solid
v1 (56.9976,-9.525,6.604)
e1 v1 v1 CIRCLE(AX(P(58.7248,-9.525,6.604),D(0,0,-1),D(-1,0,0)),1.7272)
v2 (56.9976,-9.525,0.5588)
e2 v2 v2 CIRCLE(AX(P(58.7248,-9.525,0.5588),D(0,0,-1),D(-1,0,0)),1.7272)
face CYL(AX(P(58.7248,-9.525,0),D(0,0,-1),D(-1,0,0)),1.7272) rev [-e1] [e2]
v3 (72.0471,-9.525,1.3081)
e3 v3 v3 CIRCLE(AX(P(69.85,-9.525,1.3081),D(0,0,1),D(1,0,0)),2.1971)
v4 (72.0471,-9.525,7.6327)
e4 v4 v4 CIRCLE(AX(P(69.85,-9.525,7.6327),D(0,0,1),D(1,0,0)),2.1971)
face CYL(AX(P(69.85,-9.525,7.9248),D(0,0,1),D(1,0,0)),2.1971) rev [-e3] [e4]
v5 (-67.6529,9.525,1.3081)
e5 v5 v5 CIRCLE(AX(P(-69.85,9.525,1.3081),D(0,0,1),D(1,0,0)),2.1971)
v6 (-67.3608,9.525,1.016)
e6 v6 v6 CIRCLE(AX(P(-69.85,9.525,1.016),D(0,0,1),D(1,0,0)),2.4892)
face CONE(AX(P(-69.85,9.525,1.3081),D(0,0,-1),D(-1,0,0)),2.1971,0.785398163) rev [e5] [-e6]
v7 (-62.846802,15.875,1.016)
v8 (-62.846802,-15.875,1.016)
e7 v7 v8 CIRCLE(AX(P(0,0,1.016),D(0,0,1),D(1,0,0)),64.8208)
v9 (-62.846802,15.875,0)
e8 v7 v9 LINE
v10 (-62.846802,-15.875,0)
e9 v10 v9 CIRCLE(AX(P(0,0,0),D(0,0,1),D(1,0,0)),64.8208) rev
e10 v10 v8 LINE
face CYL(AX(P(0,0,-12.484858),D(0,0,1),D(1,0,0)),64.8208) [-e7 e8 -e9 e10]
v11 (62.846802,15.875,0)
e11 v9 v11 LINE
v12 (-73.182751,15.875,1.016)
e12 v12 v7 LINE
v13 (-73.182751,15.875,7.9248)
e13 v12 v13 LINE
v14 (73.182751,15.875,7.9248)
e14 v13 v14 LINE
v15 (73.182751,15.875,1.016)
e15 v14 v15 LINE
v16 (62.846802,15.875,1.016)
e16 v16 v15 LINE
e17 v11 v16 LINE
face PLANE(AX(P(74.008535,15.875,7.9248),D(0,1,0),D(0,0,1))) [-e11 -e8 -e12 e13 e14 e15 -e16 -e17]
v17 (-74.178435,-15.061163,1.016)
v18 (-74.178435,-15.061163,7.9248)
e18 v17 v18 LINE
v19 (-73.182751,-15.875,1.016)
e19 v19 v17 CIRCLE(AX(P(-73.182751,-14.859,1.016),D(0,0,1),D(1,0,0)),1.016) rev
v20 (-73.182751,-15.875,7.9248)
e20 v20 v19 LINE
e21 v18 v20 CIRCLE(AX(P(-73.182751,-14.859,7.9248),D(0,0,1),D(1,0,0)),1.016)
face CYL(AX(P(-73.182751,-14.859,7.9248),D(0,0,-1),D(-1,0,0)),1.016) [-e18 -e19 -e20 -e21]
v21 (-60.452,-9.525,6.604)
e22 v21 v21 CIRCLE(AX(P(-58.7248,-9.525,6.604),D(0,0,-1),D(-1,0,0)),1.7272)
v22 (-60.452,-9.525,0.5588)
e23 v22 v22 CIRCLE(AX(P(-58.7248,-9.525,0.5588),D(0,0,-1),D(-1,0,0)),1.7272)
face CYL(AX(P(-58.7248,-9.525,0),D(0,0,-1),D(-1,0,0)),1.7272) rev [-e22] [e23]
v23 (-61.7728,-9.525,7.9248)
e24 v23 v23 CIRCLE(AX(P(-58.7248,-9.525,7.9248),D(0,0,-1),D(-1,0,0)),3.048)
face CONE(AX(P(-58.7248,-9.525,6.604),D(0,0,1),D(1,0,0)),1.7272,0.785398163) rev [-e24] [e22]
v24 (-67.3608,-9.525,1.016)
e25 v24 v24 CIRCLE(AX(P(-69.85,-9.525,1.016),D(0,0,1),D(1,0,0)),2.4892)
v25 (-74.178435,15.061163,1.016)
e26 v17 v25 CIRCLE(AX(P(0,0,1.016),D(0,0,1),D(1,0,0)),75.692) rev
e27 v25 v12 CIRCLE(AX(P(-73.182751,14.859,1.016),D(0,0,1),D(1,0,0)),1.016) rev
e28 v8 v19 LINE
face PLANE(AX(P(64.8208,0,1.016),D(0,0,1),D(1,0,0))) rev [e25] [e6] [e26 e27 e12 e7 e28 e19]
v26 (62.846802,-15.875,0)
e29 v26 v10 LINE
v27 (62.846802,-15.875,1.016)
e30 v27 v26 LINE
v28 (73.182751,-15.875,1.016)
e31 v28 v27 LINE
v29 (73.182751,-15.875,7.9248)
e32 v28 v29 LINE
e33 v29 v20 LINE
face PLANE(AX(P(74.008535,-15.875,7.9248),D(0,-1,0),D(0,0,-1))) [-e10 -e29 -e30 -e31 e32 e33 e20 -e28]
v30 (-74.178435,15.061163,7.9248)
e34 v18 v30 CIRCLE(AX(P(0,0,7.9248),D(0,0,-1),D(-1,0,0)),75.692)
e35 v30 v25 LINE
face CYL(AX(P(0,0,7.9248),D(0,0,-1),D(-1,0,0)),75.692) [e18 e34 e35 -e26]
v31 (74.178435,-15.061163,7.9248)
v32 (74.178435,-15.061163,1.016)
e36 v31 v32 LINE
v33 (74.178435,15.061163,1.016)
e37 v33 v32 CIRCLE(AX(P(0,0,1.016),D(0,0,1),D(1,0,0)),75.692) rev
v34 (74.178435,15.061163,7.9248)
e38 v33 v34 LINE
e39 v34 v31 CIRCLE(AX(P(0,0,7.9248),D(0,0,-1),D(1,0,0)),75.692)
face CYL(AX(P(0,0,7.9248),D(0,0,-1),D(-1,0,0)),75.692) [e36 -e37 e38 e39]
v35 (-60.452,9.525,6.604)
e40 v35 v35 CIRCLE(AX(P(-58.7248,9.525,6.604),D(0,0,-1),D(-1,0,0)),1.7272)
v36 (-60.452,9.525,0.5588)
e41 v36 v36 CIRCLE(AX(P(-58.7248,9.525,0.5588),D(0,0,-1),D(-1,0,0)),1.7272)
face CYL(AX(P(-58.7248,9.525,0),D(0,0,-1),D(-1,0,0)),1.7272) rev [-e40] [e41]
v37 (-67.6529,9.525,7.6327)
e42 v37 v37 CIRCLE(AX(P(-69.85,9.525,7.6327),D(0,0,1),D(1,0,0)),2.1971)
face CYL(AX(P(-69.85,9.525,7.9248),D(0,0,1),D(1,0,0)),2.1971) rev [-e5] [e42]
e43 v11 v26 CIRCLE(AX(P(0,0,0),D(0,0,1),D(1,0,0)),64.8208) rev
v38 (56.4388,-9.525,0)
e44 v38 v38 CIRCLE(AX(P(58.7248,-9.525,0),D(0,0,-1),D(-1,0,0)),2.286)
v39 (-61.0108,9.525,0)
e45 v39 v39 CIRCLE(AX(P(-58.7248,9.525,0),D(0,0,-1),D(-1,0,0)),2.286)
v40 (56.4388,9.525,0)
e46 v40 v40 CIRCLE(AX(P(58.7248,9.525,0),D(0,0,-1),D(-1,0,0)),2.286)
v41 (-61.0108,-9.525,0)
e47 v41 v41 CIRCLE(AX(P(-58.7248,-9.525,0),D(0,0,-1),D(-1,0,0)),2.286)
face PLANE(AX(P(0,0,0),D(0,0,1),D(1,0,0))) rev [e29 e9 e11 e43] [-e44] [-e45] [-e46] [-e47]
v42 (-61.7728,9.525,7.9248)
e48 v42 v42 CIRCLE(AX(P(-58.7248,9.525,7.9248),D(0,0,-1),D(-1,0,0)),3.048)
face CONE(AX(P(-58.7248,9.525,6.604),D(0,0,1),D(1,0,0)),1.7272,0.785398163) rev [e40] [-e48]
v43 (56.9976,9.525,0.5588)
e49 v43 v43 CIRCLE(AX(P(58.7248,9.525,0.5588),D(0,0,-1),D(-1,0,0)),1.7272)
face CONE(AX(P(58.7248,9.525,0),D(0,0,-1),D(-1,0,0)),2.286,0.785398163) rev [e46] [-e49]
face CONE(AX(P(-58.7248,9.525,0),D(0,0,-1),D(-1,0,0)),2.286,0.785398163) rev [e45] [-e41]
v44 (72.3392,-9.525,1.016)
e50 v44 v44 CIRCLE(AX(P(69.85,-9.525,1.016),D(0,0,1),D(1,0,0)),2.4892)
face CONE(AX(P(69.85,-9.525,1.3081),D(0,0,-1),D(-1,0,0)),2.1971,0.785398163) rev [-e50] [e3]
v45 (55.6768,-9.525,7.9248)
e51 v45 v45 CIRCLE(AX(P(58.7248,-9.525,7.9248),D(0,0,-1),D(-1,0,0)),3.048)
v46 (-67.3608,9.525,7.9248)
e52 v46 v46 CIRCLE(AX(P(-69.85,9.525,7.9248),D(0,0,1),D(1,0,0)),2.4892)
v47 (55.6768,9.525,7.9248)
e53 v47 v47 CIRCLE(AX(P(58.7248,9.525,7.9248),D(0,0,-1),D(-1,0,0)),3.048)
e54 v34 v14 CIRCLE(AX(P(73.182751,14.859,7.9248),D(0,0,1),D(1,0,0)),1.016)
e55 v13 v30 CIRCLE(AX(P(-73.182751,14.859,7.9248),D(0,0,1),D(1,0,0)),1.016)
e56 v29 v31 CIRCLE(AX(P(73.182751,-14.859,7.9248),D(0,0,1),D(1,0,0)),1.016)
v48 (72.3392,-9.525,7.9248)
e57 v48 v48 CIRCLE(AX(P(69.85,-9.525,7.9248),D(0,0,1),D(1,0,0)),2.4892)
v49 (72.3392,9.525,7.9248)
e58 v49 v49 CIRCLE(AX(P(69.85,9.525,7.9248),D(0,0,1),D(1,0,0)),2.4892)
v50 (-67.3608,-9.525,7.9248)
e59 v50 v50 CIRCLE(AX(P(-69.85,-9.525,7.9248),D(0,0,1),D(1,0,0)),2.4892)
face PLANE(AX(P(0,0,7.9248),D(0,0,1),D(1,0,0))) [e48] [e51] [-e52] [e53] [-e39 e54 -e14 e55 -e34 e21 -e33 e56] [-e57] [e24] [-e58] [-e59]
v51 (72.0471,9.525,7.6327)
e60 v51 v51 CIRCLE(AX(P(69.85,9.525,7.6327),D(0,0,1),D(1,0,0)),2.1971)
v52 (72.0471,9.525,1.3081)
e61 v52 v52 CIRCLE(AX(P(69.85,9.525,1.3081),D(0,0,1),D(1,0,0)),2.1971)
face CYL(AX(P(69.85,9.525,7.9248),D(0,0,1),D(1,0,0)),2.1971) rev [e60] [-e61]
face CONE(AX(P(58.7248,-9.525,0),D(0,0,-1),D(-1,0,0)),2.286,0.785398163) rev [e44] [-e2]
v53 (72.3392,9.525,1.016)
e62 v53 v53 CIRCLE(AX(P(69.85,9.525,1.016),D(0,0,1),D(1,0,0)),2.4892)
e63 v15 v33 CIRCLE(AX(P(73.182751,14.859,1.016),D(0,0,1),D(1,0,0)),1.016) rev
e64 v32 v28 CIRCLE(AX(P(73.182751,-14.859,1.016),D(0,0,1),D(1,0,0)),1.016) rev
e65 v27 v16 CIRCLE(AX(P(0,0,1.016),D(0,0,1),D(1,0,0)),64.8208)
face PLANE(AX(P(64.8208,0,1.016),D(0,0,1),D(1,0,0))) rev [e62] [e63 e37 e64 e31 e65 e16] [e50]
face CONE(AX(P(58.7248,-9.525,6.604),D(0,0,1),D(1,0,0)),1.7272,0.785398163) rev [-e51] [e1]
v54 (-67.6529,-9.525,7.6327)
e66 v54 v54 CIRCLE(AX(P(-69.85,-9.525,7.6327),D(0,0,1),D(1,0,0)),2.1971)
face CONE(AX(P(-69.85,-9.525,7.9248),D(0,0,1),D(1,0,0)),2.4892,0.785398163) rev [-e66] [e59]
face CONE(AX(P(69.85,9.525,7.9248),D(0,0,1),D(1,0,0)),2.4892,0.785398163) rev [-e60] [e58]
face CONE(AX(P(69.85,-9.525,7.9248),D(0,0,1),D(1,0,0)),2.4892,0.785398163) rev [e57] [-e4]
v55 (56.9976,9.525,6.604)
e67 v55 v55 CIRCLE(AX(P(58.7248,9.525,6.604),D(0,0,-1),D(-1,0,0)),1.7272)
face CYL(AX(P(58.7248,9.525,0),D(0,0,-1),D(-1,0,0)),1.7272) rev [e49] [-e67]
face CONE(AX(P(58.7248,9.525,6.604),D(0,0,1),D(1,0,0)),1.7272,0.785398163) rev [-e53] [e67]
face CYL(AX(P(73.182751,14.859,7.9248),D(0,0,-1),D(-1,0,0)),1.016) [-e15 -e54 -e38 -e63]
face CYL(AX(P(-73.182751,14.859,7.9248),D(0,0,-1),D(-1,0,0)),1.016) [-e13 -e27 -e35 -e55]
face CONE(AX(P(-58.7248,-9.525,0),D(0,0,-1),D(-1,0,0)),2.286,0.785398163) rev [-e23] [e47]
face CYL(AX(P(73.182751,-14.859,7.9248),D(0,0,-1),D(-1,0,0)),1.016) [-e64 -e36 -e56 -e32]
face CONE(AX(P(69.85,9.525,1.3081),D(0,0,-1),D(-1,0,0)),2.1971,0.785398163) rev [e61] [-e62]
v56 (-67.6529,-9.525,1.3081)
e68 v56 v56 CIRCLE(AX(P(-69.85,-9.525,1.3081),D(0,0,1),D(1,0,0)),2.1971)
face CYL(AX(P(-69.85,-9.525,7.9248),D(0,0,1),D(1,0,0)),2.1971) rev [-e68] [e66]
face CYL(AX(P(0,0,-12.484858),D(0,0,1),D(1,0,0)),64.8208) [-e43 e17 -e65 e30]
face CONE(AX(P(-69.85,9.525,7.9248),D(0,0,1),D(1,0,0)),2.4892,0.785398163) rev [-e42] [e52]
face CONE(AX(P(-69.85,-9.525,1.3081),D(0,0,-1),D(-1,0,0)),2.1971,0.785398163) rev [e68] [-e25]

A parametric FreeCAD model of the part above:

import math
import FreeCAD as App
import Part
import Sketcher

V = App.Vector
Q = App.Units.Quantity


def edges_at(feature, points):
    """Names of the edges that pass closest to the given points."""
    edges = feature.Shape.Edges
    near = lambda p: min(range(len(edges)), key=lambda i: edges[i].distToShape(Part.Vertex(*p))[0])
    return sorted({f"Edge{near(p) + 1}" for p in points})

doc = App.newDocument("Part")
body = doc.addObject("PartDesign::Body", "Body")

sketch1 = doc.addObject("Sketcher::SketchObject", "Sketch")
body.addObject(sketch1)
sketch1.AttachmentSupport = (doc.XY_Plane, [""])
sketch1.MapMode = "FlatFace"
sketch1.addGeometry([
    Part.LineSegment(V(-74.008535, 15.875, 0), V(74.008535, 15.875, 0)),
    Part.ArcOfCircle(Part.Circle(V(0, 0, 0), V(0, 0, 1), 75.692), math.radians(-12.10662), math.radians(12.10662)),
    Part.LineSegment(V(74.008535, -15.875, 0), V(-74.008535, -15.875, 0)),
    Part.ArcOfCircle(Part.Circle(V(0, 0, 0), V(0, 0, 1), 75.692), math.radians(167.89338), math.radians(192.10662)),
], False)
sketch1.addConstraint([
    Sketcher.Constraint("Coincident", 0, 2, 1, 2),
    Sketcher.Constraint("Coincident", 1, 1, 2, 1),
    Sketcher.Constraint("Coincident", 2, 2, 3, 2),
    Sketcher.Constraint("Coincident", 3, 1, 0, 1),
    Sketcher.Constraint("Horizontal", 0),
    Sketcher.Constraint("Horizontal", 2),
    Sketcher.Constraint("Coincident", 1, 3, -1, 1),
    Sketcher.Constraint("Coincident", 3, 3, -1, 1),
    Sketcher.Constraint("Equal", 1, 3),
    Sketcher.Constraint("Vertical", 0, 2, 1, 1),
    Sketcher.Constraint("Radius", 1, Q("2.98 in")),
    Sketcher.Constraint("DistanceY", 1, 1, 0, 2, Q("1.25 in")),
])
pad1 = doc.addObject("PartDesign::Pad", "Pad")
body.addObject(pad1)
pad1.Profile = sketch1
pad1.Length = Q("0.312 in")

sketch2 = doc.addObject("Sketcher::SketchObject", "Sketch001")
body.addObject(sketch2)
sketch2.AttachmentSupport = (doc.XZ_Plane, [""])
sketch2.MapMode = "FlatFace"
sketch2.addGeometry([
    Part.LineSegment(V(64.8208, -34.544, 0), V(64.8208, 1.016, 0)),
    Part.LineSegment(V(64.8208, 1.016, 0), V(100.3808, 1.016, 0)),
    Part.LineSegment(V(100.3808, 1.016, 0), V(100.3808, -34.544, 0)),
    Part.LineSegment(V(100.3808, -34.544, 0), V(64.8208, -34.544, 0)),
], False)
sketch2.addConstraint([
    Sketcher.Constraint("Coincident", 0, 2, 1, 1),
    Sketcher.Constraint("Coincident", 1, 2, 2, 1),
    Sketcher.Constraint("Coincident", 2, 2, 3, 1),
    Sketcher.Constraint("Coincident", 3, 2, 0, 1),
    Sketcher.Constraint("Vertical", 0),
    Sketcher.Constraint("Horizontal", 1),
    Sketcher.Constraint("Vertical", 2),
    Sketcher.Constraint("Horizontal", 3),
    Sketcher.Constraint("Equal", 3, 0),
    Sketcher.Constraint("DistanceX", 1, 1, 1, 2, Q("1.4 in")),
    Sketcher.Constraint("DistanceY", -1, 1, 0, 2, Q("0.04 in")),
    Sketcher.Constraint("DistanceX", -1, 1, 0, 2, Q("2.552 in")),
])
groove = doc.addObject("PartDesign::Groove", "Groove")
body.addObject(groove)
groove.Profile = sketch2
groove.ReferenceAxis = (sketch2, ["V_Axis"])
groove.Angle = 360
doc.recompute()

fillet = doc.addObject("PartDesign::Fillet", "Fillet")
body.addObject(fillet)
fillet.Base = (groove, edges_at(groove, [
    (74.009, 15.875, 4.47),
    (-74.009, 15.875, 4.47),
    (-74.009, -15.875, 4.47),
    (74.009, -15.875, 4.47),
]))
fillet.Radius = Q("0.04 in")

sketch3 = doc.addObject("Sketcher::SketchObject", "Sketch002")
body.addObject(sketch3)
sketch3.AttachmentSupport = (doc.YZ_Plane, [""])
sketch3.MapMode = "FlatFace"
sketch3.AttachmentOffset = App.Placement(V(0, 0, -2.312 * 25.4), App.Rotation())
sketch3.addGeometry([
    Part.LineSegment(V(9.525, 7.9248, 0), V(9.525, 0, 0)),
    Part.LineSegment(V(9.525, 0, 0), V(11.811, 0, 0)),
    Part.LineSegment(V(11.811, 0, 0), V(11.2522, 0.5588, 0)),
    Part.LineSegment(V(11.2522, 0.5588, 0), V(11.2522, 6.604, 0)),
    Part.LineSegment(V(11.2522, 6.604, 0), V(12.573, 7.9248, 0)),
    Part.LineSegment(V(12.573, 7.9248, 0), V(9.525, 7.9248, 0)),
], False)
sketch3.addGeometry(Part.LineSegment(V(9.525, 0, 0), V(9.525, 7.9248, 0)), True)
sketch3.addConstraint([
    Sketcher.Constraint("Coincident", 0, 2, 1, 1),
    Sketcher.Constraint("Coincident", 1, 2, 2, 1),
    Sketcher.Constraint("Coincident", 2, 2, 3, 1),
    Sketcher.Constraint("Coincident", 3, 2, 4, 1),
    Sketcher.Constraint("Coincident", 4, 2, 5, 1),
    Sketcher.Constraint("Coincident", 5, 2, 0, 1),
    Sketcher.Constraint("Vertical", 0),
    Sketcher.Constraint("Horizontal", 1),
    Sketcher.Constraint("Vertical", 3),
    Sketcher.Constraint("Horizontal", 5),
    Sketcher.Constraint("Vertical", 6),
    Sketcher.Constraint("Coincident", 6, 1, 0, 2),
    Sketcher.Constraint("PointOnObject", 0, 2, -1),
    Sketcher.Constraint("Perpendicular", 2, 4),
    Sketcher.Constraint("Horizontal", 4, 2, 6, 2),
    Sketcher.Constraint("Angle", 2, Q("135 deg")),
    Sketcher.Constraint("DistanceX", 1, 1, 1, 2, Q("0.09 in")),
    Sketcher.Constraint("DistanceX", 5, 2, 5, 1, Q("0.12 in")),
    Sketcher.Constraint("DistanceY", 0, 2, 0, 1, Q("0.312 in")),
    Sketcher.Constraint("DistanceY", 3, 1, 3, 2, Q("0.238 in")),
    Sketcher.Constraint("DistanceX", -1, 1, 0, 2, Q("0.375 in")),
])
groove2 = doc.addObject("PartDesign::Groove", "Groove001")
body.addObject(groove2)
groove2.Profile = sketch3
groove2.ReferenceAxis = (sketch3, ["Axis0"])
groove2.Angle = 360
doc.recompute()

linearpattern = doc.addObject("PartDesign::LinearPattern", "LinearPattern")
body.addObject(linearpattern)
linearpattern.Originals = [groove2]
linearpattern.Direction = (doc.Y_Axis, [""])
linearpattern.Mode = "offset"
linearpattern.Offset = Q("0.75 in")
linearpattern.Occurrences = 2
linearpattern.Reversed = True
body.Tip = linearpattern
doc.recompute()

linearpattern2 = doc.addObject("PartDesign::LinearPattern", "LinearPattern001")
body.addObject(linearpattern2)
linearpattern2.Originals = [groove2]
linearpattern2.Direction = (doc.X_Axis, [""])
linearpattern2.Mode = "offset"
linearpattern2.Offset = Q("4.624 in")
linearpattern2.Occurrences = 2
body.Tip = linearpattern2
doc.recompute()

datumline = doc.addObject("PartDesign::Line", "DatumLine")
body.addObject(datumline)
datumline.Placement = App.Placement(V(0, 0, 0), App.Rotation(V(0, 0, 1), V(0.987100007, -0.160104889, 0)))
linearpattern3 = doc.addObject("PartDesign::LinearPattern", "LinearPattern002")
body.addObject(linearpattern3)
linearpattern3.Originals = [groove2]
linearpattern3.Direction = (datumline, [""])
linearpattern3.Mode = "offset"
linearpattern3.Offset = 118.984499
linearpattern3.Occurrences = 2
body.Tip = linearpattern3

sketch4 = doc.addObject("Sketcher::SketchObject", "Sketch003")
body.addObject(sketch4)
sketch4.AttachmentSupport = (doc.YZ_Plane, [""])
sketch4.MapMode = "FlatFace"
sketch4.AttachmentOffset = App.Placement(V(0, 0, 2.75 * 25.4), App.Rotation())
sketch4.addGeometry([
    Part.LineSegment(V(9.525, 1.016, 0), V(9.525, 7.9248, 0)),
    Part.LineSegment(V(9.525, 7.9248, 0), V(7.0358, 7.9248, 0)),
    Part.LineSegment(V(7.0358, 7.9248, 0), V(7.3279, 7.6327, 0)),
    Part.LineSegment(V(7.3279, 7.6327, 0), V(7.3279, 1.3081, 0)),
    Part.LineSegment(V(7.3279, 1.3081, 0), V(7.0358, 1.016, 0)),
    Part.LineSegment(V(7.0358, 1.016, 0), V(9.525, 1.016, 0)),
], False)
sketch4.addGeometry(Part.LineSegment(V(9.525, 7.9248, 0), V(9.525, 1.016, 0)), True)
sketch4.addConstraint([
    Sketcher.Constraint("Coincident", 0, 2, 1, 1),
    Sketcher.Constraint("Coincident", 1, 2, 2, 1),
    Sketcher.Constraint("Coincident", 2, 2, 3, 1),
    Sketcher.Constraint("Coincident", 3, 2, 4, 1),
    Sketcher.Constraint("Coincident", 4, 2, 5, 1),
    Sketcher.Constraint("Coincident", 5, 2, 0, 1),
    Sketcher.Constraint("Vertical", 0),
    Sketcher.Constraint("Horizontal", 1),
    Sketcher.Constraint("Vertical", 3),
    Sketcher.Constraint("Horizontal", 5),
    Sketcher.Constraint("Vertical", 6),
    Sketcher.Constraint("Coincident", 6, 1, 0, 2),
    Sketcher.Constraint("Perpendicular", 2, 4),
    Sketcher.Constraint("Horizontal", 4, 2, 6, 2),
    Sketcher.Constraint("Vertical", 1, 2, 4, 2),
    Sketcher.Constraint("Equal", 2, 4),
    Sketcher.Constraint("DistanceX", 1, 2, 1, 1, Q("0.098 in")),
    Sketcher.Constraint("DistanceY", 0, 1, 0, 2, Q("0.272 in")),
    Sketcher.Constraint("DistanceY", 3, 2, 3, 1, Q("0.249 in")),
    Sketcher.Constraint("DistanceY", -1, 1, 4, 2, Q("0.04 in")),
    Sketcher.Constraint("DistanceX", -1, 1, 0, 2, Q("0.375 in")),
])
groove3 = doc.addObject("PartDesign::Groove", "Groove002")
body.addObject(groove3)
groove3.Profile = sketch4
groove3.ReferenceAxis = (sketch4, ["Axis0"])
groove3.Angle = 360
doc.recompute()

linearpattern4 = doc.addObject("PartDesign::LinearPattern", "LinearPattern003")
body.addObject(linearpattern4)
linearpattern4.Originals = [groove3]
linearpattern4.Direction = (doc.Y_Axis, [""])
linearpattern4.Mode = "offset"
linearpattern4.Offset = Q("0.75 in")
linearpattern4.Occurrences = 2
linearpattern4.Reversed = True
body.Tip = linearpattern4
doc.recompute()

linearpattern5 = doc.addObject("PartDesign::LinearPattern", "LinearPattern004")
body.addObject(linearpattern5)
linearpattern5.Originals = [groove3]
linearpattern5.Direction = (doc.X_Axis, [""])
linearpattern5.Mode = "offset"
linearpattern5.Offset = Q("5.5 in")
linearpattern5.Occurrences = 2
linearpattern5.Reversed = True
body.Tip = linearpattern5
doc.recompute()

datumline2 = doc.addObject("PartDesign::Line", "DatumLine001")
body.addObject(datumline2)
datumline2.Placement = App.Placement(V(0, 0, 0), App.Rotation(V(0, 0, 1), V(-0.990830168, -0.135113205, 0)))
linearpattern6 = doc.addObject("PartDesign::LinearPattern", "LinearPattern005")
body.addObject(linearpattern6)
linearpattern6.Originals = [groove3]
linearpattern6.Direction = (datumline2, [""])
linearpattern6.Mode = "offset"
linearpattern6.Offset = 140.992881
linearpattern6.Occurrences = 2
body.Tip = linearpattern6

doc.recompute()
